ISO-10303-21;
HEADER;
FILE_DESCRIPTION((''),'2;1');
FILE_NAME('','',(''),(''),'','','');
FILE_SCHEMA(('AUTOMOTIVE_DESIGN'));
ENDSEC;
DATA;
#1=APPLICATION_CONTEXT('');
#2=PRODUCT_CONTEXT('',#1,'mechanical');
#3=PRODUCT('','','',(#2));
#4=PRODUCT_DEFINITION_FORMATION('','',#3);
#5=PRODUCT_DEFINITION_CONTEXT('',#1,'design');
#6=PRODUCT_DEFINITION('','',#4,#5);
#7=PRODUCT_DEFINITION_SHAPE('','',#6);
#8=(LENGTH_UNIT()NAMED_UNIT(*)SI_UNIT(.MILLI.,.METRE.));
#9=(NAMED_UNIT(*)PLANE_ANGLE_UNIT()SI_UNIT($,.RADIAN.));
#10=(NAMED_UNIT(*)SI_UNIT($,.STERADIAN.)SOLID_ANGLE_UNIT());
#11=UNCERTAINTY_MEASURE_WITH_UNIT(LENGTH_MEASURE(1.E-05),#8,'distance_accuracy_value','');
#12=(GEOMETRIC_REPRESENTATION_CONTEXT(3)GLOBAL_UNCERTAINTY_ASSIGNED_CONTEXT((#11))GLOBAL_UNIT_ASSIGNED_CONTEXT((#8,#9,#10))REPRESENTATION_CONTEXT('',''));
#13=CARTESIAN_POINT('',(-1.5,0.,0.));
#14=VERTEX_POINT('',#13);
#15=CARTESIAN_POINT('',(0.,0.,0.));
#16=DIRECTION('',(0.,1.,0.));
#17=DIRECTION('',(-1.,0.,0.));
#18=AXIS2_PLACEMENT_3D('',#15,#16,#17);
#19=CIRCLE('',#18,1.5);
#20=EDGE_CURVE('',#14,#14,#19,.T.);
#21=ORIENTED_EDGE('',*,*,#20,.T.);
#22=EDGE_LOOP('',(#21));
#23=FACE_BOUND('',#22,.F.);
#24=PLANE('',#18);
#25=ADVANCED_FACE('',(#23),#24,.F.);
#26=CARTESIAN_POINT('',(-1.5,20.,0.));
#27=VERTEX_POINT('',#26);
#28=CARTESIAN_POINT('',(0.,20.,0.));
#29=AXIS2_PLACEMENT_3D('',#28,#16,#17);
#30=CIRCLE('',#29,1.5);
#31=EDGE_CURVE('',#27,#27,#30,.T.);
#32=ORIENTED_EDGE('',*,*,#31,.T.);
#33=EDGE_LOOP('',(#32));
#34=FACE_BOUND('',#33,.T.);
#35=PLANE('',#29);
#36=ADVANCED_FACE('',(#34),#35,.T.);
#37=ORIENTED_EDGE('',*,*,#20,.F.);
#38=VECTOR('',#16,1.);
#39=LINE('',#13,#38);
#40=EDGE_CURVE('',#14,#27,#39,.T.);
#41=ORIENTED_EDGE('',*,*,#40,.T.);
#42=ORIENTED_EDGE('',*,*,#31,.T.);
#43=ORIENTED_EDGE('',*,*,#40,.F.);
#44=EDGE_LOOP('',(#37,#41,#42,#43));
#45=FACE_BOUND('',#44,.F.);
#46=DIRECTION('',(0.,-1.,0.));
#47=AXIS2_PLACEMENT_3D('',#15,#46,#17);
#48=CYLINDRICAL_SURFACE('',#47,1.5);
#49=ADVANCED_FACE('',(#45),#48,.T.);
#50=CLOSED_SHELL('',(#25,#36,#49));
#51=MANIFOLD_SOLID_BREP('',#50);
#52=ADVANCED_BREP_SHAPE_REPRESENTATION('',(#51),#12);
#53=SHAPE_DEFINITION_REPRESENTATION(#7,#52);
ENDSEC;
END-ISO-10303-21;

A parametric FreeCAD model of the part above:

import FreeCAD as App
import Part
import Sketcher
Q = App.Units.Quantity

doc = App.newDocument("Part")
params = doc.addObject("Spreadsheet::Sheet", "Params")
for row, (alias, value) in enumerate([
    ("sketch1_diameter", "3 mm"),
    ("pad1_length", "20 mm"),
], start=1):
    params.set(f"A{row}", alias)
    params.set(f"B{row}", "=" + value)
    params.setAlias(f"B{row}", alias)

body = doc.addObject("PartDesign::Body", "Body")

# Sketch on XZ plane
sketch1 = body.newObject("Sketcher::SketchObject", "Sketch")
sketch1.AttachmentSupport = (doc.getObject("XZ_Plane"), [""])
sketch1.MapMode = "FlatFace"
sketch1.addGeometry(Part.Circle(App.Vector(0, 0, 0), App.Vector(0, 0, 1), 1.5), False)
sketch1.addConstraint(Sketcher.Constraint("Coincident", 0, 3, -1, 1))
sketch1.addConstraint(Sketcher.Constraint("Diameter", 0, Q("3 mm")))
sketch1.setExpression("Constraints[1]", "Params.sketch1_diameter")
pad1 = body.newObject("PartDesign::Pad", "Pad")
pad1.Profile = sketch1
pad1.setExpression("Length", "Params.pad1_length")
pad1.Reversed = True

doc.recompute()
